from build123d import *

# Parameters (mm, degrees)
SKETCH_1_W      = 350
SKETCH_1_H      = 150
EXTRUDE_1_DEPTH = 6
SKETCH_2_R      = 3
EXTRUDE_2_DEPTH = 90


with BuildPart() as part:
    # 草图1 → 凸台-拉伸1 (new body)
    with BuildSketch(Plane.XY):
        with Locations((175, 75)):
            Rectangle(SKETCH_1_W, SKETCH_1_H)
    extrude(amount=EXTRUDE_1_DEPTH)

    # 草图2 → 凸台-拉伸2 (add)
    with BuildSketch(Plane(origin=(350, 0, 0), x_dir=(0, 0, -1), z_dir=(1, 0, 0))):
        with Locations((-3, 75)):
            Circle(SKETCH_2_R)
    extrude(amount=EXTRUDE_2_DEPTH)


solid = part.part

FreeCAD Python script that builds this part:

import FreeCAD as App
import Part
import Sketcher

V = App.Vector


def add_polygon(sketch, points):
    """Adds a closed chain of lines whose ends are joined by coincident constraints."""
    first, n = sketch.GeometryCount, len(points)
    for a, b in zip(points, points[1:] + points[:1]):
        sketch.addGeometry(Part.LineSegment(App.Vector(*a, 0), App.Vector(*b, 0)), False)
    for i in range(n):
        sketch.addConstraint(Sketcher.Constraint("Coincident", first + i, 2, first + (i + 1) % n, 1))

doc = App.newDocument("Part")
body = doc.addObject("PartDesign::Body", "Body")

# Sketch on XY plane
sketch1 = body.newObject("Sketcher::SketchObject", "Sketch")
sketch1.AttachmentSupport = (doc.getObject("XY_Plane"), [""])
sketch1.MapMode = "FlatFace"
add_polygon(sketch1, [(0, 150), (0, 0), (350, 0), (350, 150)])  # lines 0-3
sketch1.addConstraint([
    Sketcher.Constraint("Vertical", 0),
    Sketcher.Constraint("Horizontal", 1),
    Sketcher.Constraint("Vertical", 2),
    Sketcher.Constraint("Horizontal", 3),
    Sketcher.Constraint("Coincident", 0, 2, -1, 1),
    Sketcher.Constraint("DistanceX", 1, 1, 1, 2, 350.0),
    Sketcher.Constraint("DistanceY", 0, 2, 0, 1, 150.0),
])
pad1 = body.newObject("PartDesign::Pad", "Pad")
pad1.Profile = sketch1
pad1.Length = 6

# Sketch on YZ plane
sketch2 = body.newObject("Sketcher::SketchObject", "Sketch001")
sketch2.AttachmentSupport = (doc.getObject("YZ_Plane"), [""])
sketch2.MapMode = "FlatFace"
sketch2.AttachmentOffset = App.Placement(V(0, 0, 350), App.Rotation())
sketch2.addGeometry(Part.Circle(V(75, 3, 0), V(0, 0, 1), 3), False)
sketch2.addConstraint([
    Sketcher.Constraint("Diameter", 0, 6.0),
    Sketcher.Constraint("DistanceX", -1, 1, 0, 3, 75.0),
    Sketcher.Constraint("DistanceY", -1, 1, 0, 3, 3.0),
])
pad2 = body.newObject("PartDesign::Pad", "Pad001")
pad2.Profile = sketch2
pad2.Length = 90

doc.recompute()
